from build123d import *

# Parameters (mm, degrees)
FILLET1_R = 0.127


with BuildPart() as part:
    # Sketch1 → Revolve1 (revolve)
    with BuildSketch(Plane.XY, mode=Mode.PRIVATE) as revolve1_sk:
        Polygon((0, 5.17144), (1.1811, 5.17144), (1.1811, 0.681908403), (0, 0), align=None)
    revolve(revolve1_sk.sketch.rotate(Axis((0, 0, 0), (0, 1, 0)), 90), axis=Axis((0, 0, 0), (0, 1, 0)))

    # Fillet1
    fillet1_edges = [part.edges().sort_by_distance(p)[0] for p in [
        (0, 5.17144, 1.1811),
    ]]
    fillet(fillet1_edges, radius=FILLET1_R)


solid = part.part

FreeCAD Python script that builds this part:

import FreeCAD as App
import Part
import Sketcher
Q = App.Units.Quantity


def edges_at(feature, points):
    """Names of the edges that pass closest to the given points."""
    edges = feature.Shape.Edges
    near = lambda p: min(range(len(edges)), key=lambda i: edges[i].distToShape(Part.Vertex(*p))[0])
    return sorted({f"Edge{near(p) + 1}" for p in points})

doc = App.newDocument("Part")
body = doc.addObject("PartDesign::Body", "Body")

# Sketch on XY plane
sketch1 = body.newObject("Sketcher::SketchObject", "Sketch")
sketch1.AttachmentSupport = (doc.getObject("XY_Plane"), [""])
sketch1.MapMode = "FlatFace"
sketch1.addGeometry(Part.LineSegment(App.Vector(1.2, 5.2, 0), App.Vector(0, 5.2, 0)), False)
sketch1.addGeometry(Part.LineSegment(App.Vector(0, 5.2, 0), App.Vector(0, 0, 0)), False)
sketch1.addGeometry(Part.LineSegment(App.Vector(0, 0, 0), App.Vector(1.2, 0.7, 0)), False)
sketch1.addGeometry(Part.LineSegment(App.Vector(1.2, 0.7, 0), App.Vector(1.2, 5.2, 0)), False)
sketch1.addConstraint(Sketcher.Constraint("Coincident", 0, 2, 1, 1))
sketch1.addConstraint(Sketcher.Constraint("Coincident", 1, 2, 2, 1))
sketch1.addConstraint(Sketcher.Constraint("Coincident", 2, 2, 3, 1))
sketch1.addConstraint(Sketcher.Constraint("Coincident", 3, 2, 0, 1))
sketch1.addConstraint(Sketcher.Constraint("Horizontal", 0))
sketch1.addConstraint(Sketcher.Constraint("Vertical", 1))
sketch1.addConstraint(Sketcher.Constraint("Vertical", 3))
sketch1.addConstraint(Sketcher.Constraint("Coincident", 1, 2, -1, 1))
sketch1.addConstraint(Sketcher.Constraint("Angle", 2, Q("30 deg")))
sketch1.addConstraint(Sketcher.Constraint("DistanceX", 0, 2, 0, 1, Q("0.0465 in")))
sketch1.addConstraint(Sketcher.Constraint("DistanceY", 1, 2, 1, 1, Q("0.2036 in")))
revolution = body.newObject("PartDesign::Revolution", "Revolution")
revolution.Profile = sketch1
revolution.ReferenceAxis = (sketch1, ["V_Axis"])
revolution.Angle = 360
doc.recompute()

fillet = body.newObject("PartDesign::Fillet", "Fillet")
fillet.Base = (revolution, edges_at(revolution, [(0, 5.171, 1.181)]))
fillet.Radius = Q("0.005 in")

doc.recompute()
